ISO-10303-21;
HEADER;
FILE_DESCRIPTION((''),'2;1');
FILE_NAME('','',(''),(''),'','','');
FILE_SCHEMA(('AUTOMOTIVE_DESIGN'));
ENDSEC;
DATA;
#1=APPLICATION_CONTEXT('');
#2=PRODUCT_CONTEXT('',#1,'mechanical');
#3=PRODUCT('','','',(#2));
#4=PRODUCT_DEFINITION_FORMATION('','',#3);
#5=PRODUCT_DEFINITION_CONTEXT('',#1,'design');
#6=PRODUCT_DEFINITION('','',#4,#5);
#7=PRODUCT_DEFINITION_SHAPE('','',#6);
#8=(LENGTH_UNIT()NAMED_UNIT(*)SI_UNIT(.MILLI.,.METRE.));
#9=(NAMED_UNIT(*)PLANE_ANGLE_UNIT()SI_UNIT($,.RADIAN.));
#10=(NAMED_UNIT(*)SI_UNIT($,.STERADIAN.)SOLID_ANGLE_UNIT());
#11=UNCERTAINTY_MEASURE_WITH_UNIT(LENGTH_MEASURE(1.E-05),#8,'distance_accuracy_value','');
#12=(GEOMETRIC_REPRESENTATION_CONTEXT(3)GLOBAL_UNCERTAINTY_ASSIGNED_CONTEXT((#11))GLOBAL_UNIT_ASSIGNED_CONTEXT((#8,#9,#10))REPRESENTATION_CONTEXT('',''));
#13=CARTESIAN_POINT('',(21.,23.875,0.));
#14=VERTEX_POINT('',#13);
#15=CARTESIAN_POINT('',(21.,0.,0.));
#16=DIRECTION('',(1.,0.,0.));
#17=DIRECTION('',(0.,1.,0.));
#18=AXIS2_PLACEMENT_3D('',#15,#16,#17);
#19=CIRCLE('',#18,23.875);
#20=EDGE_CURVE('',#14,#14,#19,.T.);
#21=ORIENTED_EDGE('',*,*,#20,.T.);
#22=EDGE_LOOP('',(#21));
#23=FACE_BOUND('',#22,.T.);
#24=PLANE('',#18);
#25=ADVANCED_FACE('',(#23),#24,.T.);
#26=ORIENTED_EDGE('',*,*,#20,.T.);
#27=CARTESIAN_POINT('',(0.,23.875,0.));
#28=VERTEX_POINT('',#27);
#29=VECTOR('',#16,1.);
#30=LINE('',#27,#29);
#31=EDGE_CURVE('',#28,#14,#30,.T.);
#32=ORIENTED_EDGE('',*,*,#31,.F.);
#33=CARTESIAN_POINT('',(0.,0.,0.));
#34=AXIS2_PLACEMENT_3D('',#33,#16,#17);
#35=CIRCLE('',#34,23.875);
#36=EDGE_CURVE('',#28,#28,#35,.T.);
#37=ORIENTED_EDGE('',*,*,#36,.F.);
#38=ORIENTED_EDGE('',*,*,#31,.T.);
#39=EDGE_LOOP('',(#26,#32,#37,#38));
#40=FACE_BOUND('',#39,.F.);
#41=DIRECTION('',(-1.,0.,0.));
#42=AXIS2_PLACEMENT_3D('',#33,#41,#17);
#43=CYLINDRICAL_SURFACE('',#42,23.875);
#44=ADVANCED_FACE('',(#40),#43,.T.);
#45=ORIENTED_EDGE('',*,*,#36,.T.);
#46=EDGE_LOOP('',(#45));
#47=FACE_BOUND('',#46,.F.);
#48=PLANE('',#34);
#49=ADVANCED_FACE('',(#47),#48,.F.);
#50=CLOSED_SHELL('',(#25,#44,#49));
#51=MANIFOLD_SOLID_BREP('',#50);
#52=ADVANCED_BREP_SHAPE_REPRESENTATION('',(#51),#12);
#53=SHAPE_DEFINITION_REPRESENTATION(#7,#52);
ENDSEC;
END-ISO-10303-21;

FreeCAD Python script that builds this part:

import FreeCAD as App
import Part
import Sketcher

doc = App.newDocument("Part")
params = doc.addObject("Spreadsheet::Sheet", "Params")
for row, (alias, value) in enumerate([
    ("sketch1_diameter", "47.75 mm"),
    ("pad1_length", "21 mm"),
], start=1):
    params.set(f"A{row}", alias)
    params.set(f"B{row}", "=" + value)
    params.setAlias(f"B{row}", alias)

body = doc.addObject("PartDesign::Body", "Body")

# Sketch on YZ plane
sketch1 = body.newObject("Sketcher::SketchObject", "Sketch")
sketch1.AttachmentSupport = (doc.getObject("YZ_Plane"), [""])
sketch1.MapMode = "FlatFace"
sketch1.addGeometry(Part.Circle(App.Vector(0, 0, 0), App.Vector(0, 0, 1), 24), False)
sketch1.addConstraint(Sketcher.Constraint("Coincident", 0, 3, -1, 1))
sketch1.addConstraint(Sketcher.Constraint("Diameter", 0, 47.75))
sketch1.setExpression("Constraints[1]", "Params.sketch1_diameter")
pad1 = body.newObject("PartDesign::Pad", "Pad")
pad1.Profile = sketch1
pad1.setExpression("Length", "Params.pad1_length")

doc.recompute()
